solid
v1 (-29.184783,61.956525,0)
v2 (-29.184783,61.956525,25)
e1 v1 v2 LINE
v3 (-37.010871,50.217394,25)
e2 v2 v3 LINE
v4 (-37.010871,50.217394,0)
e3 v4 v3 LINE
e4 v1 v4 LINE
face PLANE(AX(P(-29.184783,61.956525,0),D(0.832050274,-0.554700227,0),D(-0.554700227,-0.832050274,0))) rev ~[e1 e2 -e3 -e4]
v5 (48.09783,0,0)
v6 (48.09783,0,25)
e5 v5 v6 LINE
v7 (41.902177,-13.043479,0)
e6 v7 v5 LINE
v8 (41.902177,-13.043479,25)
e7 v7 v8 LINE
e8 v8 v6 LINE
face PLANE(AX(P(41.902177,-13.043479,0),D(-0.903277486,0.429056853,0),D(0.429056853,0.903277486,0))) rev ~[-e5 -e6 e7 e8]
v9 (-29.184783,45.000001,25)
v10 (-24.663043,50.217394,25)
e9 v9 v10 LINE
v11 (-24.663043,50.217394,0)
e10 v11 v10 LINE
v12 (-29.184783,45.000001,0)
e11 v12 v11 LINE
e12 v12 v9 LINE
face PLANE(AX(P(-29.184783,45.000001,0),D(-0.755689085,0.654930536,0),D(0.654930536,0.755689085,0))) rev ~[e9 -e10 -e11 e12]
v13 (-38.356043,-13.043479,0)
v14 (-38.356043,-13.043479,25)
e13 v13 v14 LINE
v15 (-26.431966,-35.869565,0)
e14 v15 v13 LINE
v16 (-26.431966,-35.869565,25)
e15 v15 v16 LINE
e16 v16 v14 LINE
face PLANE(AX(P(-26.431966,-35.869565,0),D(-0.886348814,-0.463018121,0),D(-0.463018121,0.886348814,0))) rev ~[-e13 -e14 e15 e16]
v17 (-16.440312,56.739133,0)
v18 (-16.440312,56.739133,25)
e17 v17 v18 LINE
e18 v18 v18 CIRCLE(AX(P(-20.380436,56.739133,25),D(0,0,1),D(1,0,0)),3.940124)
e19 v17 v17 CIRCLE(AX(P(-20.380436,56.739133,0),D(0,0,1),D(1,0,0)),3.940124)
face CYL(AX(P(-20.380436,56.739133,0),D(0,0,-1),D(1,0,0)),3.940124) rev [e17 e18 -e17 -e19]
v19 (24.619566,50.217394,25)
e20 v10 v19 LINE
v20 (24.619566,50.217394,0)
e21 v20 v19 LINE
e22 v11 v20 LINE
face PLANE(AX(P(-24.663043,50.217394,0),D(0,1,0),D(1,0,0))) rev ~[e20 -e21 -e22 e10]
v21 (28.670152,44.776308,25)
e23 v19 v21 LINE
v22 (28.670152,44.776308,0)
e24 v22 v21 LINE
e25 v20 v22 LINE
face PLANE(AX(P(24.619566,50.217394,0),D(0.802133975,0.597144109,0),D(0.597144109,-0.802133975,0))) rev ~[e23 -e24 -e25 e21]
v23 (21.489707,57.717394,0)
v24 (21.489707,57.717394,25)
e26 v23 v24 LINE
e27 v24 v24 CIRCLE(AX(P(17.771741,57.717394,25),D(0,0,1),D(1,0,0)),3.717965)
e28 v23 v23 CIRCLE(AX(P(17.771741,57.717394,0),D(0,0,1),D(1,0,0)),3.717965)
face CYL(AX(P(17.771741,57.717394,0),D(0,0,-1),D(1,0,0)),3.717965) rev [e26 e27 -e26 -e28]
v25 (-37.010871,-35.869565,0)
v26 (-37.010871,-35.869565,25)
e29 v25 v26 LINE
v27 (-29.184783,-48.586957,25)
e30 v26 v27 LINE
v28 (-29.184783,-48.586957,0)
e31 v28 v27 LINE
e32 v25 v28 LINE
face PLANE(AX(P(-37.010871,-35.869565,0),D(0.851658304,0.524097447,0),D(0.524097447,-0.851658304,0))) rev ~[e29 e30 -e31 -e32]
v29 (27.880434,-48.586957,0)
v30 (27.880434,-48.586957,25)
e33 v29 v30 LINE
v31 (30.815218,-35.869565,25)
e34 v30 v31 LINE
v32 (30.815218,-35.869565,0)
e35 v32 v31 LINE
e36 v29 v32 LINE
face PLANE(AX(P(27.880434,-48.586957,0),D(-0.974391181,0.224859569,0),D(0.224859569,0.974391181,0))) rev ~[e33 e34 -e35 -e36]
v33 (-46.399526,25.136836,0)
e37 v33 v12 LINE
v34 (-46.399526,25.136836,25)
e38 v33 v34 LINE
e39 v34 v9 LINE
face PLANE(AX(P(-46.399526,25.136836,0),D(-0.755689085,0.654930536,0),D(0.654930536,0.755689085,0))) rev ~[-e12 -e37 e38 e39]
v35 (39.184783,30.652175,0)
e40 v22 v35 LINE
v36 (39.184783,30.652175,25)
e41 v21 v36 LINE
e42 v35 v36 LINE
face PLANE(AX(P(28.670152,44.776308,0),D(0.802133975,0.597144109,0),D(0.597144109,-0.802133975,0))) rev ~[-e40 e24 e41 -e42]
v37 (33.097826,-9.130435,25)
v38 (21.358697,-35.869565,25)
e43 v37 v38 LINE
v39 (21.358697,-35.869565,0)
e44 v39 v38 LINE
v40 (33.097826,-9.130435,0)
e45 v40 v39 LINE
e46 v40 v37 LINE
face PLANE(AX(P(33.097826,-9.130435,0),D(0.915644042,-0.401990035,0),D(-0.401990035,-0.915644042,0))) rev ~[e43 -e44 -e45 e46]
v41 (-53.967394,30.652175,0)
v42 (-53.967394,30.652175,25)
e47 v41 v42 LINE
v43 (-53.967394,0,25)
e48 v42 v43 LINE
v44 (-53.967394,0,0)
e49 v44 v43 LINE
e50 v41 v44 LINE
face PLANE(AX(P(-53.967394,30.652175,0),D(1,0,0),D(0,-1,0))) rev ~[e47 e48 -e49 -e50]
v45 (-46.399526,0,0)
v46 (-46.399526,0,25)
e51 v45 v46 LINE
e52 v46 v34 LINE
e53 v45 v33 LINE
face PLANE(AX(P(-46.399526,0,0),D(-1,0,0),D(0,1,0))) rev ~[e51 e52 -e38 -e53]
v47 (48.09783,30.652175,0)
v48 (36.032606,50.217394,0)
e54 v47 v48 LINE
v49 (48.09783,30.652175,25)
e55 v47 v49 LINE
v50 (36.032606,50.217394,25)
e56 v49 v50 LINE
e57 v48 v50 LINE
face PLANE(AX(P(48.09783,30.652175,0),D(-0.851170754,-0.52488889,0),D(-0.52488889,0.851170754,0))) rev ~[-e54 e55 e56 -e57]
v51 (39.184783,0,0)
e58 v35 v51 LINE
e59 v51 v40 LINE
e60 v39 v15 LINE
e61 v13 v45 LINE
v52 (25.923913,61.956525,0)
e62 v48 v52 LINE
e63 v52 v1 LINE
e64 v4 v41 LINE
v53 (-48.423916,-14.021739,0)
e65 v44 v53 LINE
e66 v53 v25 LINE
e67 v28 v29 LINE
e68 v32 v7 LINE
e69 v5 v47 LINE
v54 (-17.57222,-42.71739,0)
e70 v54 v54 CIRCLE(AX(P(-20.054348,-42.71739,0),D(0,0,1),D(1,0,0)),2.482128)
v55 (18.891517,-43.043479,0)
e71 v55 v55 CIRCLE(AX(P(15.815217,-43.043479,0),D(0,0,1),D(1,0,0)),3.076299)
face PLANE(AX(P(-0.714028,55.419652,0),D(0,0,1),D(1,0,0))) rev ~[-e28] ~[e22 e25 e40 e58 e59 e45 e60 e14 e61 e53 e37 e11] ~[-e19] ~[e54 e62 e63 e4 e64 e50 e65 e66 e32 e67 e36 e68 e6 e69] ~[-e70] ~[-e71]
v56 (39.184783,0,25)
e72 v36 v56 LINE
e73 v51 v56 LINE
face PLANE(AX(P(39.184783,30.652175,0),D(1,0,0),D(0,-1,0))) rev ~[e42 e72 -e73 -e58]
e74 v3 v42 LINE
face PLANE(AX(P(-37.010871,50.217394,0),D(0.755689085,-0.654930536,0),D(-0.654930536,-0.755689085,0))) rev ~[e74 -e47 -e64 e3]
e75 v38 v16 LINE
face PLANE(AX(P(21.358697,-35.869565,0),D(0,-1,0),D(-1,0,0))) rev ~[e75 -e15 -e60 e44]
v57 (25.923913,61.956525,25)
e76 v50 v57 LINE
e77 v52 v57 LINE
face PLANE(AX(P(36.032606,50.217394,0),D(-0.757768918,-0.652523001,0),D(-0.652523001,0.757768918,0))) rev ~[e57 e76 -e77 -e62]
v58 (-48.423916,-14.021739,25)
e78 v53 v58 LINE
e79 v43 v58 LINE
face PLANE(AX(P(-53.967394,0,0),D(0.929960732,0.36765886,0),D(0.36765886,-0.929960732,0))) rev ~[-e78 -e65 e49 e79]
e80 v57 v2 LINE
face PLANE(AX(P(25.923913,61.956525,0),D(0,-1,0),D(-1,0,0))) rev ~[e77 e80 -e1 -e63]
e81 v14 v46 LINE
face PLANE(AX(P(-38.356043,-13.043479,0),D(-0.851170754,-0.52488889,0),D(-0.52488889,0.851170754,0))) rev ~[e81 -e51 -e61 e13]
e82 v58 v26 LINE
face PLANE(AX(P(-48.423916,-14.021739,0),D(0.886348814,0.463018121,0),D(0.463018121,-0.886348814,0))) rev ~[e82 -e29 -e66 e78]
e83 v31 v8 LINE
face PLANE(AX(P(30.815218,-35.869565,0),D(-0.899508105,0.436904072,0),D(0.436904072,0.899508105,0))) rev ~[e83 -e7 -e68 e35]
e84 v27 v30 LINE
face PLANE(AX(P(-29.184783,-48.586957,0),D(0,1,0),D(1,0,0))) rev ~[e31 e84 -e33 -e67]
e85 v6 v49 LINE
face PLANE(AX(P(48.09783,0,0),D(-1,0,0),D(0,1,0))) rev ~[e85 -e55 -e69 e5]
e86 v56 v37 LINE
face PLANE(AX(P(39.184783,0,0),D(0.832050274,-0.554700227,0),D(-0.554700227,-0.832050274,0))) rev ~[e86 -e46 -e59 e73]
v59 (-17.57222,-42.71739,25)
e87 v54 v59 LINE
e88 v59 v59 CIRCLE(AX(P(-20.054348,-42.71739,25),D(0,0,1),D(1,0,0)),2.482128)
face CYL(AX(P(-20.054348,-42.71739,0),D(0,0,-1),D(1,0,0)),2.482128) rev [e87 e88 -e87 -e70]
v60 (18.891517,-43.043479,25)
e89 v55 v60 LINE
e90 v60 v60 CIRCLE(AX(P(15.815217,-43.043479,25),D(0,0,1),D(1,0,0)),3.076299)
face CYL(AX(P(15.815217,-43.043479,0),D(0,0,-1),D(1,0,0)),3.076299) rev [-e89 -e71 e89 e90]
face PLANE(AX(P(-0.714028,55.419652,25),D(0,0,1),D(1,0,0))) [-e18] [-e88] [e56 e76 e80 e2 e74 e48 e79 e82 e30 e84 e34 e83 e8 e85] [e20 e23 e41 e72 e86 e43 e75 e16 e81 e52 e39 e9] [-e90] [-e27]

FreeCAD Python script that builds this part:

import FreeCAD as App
import Part
import Sketcher
from FreeCAD import Vector

doc = App.newDocument("Part")
params = doc.addObject("Spreadsheet::Sheet", "Params")
for row, (alias, value) in enumerate([
    ("pad1_length", "25 mm"),
], start=1):
    params.set(f"A{row}", alias)
    params.set(f"B{row}", "=" + value)
    params.setAlias(f"B{row}", alias)

body = doc.addObject("PartDesign::Body", "Body")

sketch1 = doc.addObject("Sketcher::SketchObject", "Sketch")
body.addObject(sketch1)
sketch1.AttachmentSupport = (doc.XY_Plane, [""])
sketch1.MapMode = "FlatFace"
sketch1.addGeometry(Part.LineSegment(Vector(25.923913, 61.956525, 0), Vector(-29.184783, 61.956525, 0)), False)
sketch1.addGeometry(Part.LineSegment(Vector(-29.184783, 61.956525, 0), Vector(-37.010871, 50.217394, 0)), False)
sketch1.addGeometry(Part.LineSegment(Vector(-37.010871, 50.217394, 0), Vector(-53.967394, 30.652175, 0)), False)
sketch1.addGeometry(Part.LineSegment(Vector(-53.967394, 30.652175, 0), Vector(-53.967394, 0, 0)), False)
sketch1.addGeometry(Part.LineSegment(Vector(-53.967394, 0, 0), Vector(-48.423916, -14.021739, 0)), False)
sketch1.addGeometry(Part.LineSegment(Vector(-48.423916, -14.021739, 0), Vector(-37.010871, -35.869565, 0)), False)
sketch1.addGeometry(Part.LineSegment(Vector(-37.010871, -35.869565, 0), Vector(-29.184783, -48.586957, 0)), False)
sketch1.addGeometry(Part.LineSegment(Vector(-29.184783, -48.586957, 0), Vector(27.880434, -48.586957, 0)), False)
sketch1.addGeometry(Part.LineSegment(Vector(27.880434, -48.586957, 0), Vector(30.815218, -35.869565, 0)), False)
sketch1.addGeometry(Part.LineSegment(Vector(30.815218, -35.869565, 0), Vector(41.902177, -13.043479, 0)), False)
sketch1.addGeometry(Part.LineSegment(Vector(41.902177, -13.043479, 0), Vector(48.09783, 0, 0)), False)
sketch1.addGeometry(Part.LineSegment(Vector(48.09783, 0, 0), Vector(48.09783, 30.652175, 0)), False)
sketch1.addGeometry(Part.LineSegment(Vector(48.09783, 30.652175, 0), Vector(36.032606, 50.217394, 0)), False)
sketch1.addGeometry(Part.LineSegment(Vector(36.032606, 50.217394, 0), Vector(25.923913, 61.956525, 0)), False)
sketch1.addGeometry(Part.Circle(Vector(-20.054348, -42.71739, 0), Vector(0, 0, 1), 2.482128), False)
sketch1.addGeometry(Part.Circle(Vector(15.815217, -43.043479, 0), Vector(0, 0, 1), 3.076299), False)
sketch1.addGeometry(Part.LineSegment(Vector(-26.431966, -35.869565, 0), Vector(-38.356043, -13.043479, 0)), False)
sketch1.addGeometry(Part.LineSegment(Vector(-38.356043, -13.043479, 0), Vector(-46.399526, 0, 0)), False)
sketch1.addGeometry(Part.LineSegment(Vector(-46.399526, 0, 0), Vector(-46.399526, 25.136836, 0)), False)
sketch1.addGeometry(Part.LineSegment(Vector(-46.399526, 25.136836, 0), Vector(-29.184783, 45.000001, 0)), False)
sketch1.addGeometry(Part.LineSegment(Vector(-29.184783, 45.000001, 0), Vector(-24.663043, 50.217394, 0)), False)
sketch1.addGeometry(Part.LineSegment(Vector(-24.663043, 50.217394, 0), Vector(24.619566, 50.217394, 0)), False)
sketch1.addGeometry(Part.LineSegment(Vector(24.619566, 50.217394, 0), Vector(28.670152, 44.776308, 0)), False)
sketch1.addGeometry(Part.LineSegment(Vector(28.670152, 44.776308, 0), Vector(39.184783, 30.652175, 0)), False)
sketch1.addGeometry(Part.LineSegment(Vector(39.184783, 30.652175, 0), Vector(39.184783, 0, 0)), False)
sketch1.addGeometry(Part.LineSegment(Vector(39.184783, 0, 0), Vector(33.097826, -9.130435, 0)), False)
sketch1.addGeometry(Part.LineSegment(Vector(33.097826, -9.130435, 0), Vector(21.358697, -35.869565, 0)), False)
sketch1.addGeometry(Part.LineSegment(Vector(21.358697, -35.869565, 0), Vector(-26.431966, -35.869565, 0)), False)
sketch1.addGeometry(Part.Circle(Vector(-20.380436, 56.739133, 0), Vector(0, 0, 1), 3.940124), False)
sketch1.addGeometry(Part.Circle(Vector(17.771741, 57.717394, 0), Vector(0, 0, 1), 3.717965), False)
sketch1.addConstraint(Sketcher.Constraint("Coincident", 0, 2, 1, 1))
sketch1.addConstraint(Sketcher.Constraint("Coincident", 1, 2, 2, 1))
sketch1.addConstraint(Sketcher.Constraint("Coincident", 2, 2, 3, 1))
sketch1.addConstraint(Sketcher.Constraint("Coincident", 3, 2, 4, 1))
sketch1.addConstraint(Sketcher.Constraint("Coincident", 4, 2, 5, 1))
sketch1.addConstraint(Sketcher.Constraint("Coincident", 5, 2, 6, 1))
sketch1.addConstraint(Sketcher.Constraint("Coincident", 6, 2, 7, 1))
sketch1.addConstraint(Sketcher.Constraint("Coincident", 7, 2, 8, 1))
sketch1.addConstraint(Sketcher.Constraint("Coincident", 8, 2, 9, 1))
sketch1.addConstraint(Sketcher.Constraint("Coincident", 9, 2, 10, 1))
sketch1.addConstraint(Sketcher.Constraint("Coincident", 10, 2, 11, 1))
sketch1.addConstraint(Sketcher.Constraint("Coincident", 11, 2, 12, 1))
sketch1.addConstraint(Sketcher.Constraint("Coincident", 12, 2, 13, 1))
sketch1.addConstraint(Sketcher.Constraint("Coincident", 13, 2, 0, 1))
sketch1.addConstraint(Sketcher.Constraint("Coincident", 16, 2, 17, 1))
sketch1.addConstraint(Sketcher.Constraint("Coincident", 17, 2, 18, 1))
sketch1.addConstraint(Sketcher.Constraint("Coincident", 18, 2, 19, 1))
sketch1.addConstraint(Sketcher.Constraint("Coincident", 19, 2, 20, 1))
sketch1.addConstraint(Sketcher.Constraint("Coincident", 20, 2, 21, 1))
sketch1.addConstraint(Sketcher.Constraint("Coincident", 21, 2, 22, 1))
sketch1.addConstraint(Sketcher.Constraint("Coincident", 22, 2, 23, 1))
sketch1.addConstraint(Sketcher.Constraint("Coincident", 23, 2, 24, 1))
sketch1.addConstraint(Sketcher.Constraint("Coincident", 24, 2, 25, 1))
sketch1.addConstraint(Sketcher.Constraint("Coincident", 25, 2, 26, 1))
sketch1.addConstraint(Sketcher.Constraint("Coincident", 26, 2, 27, 1))
sketch1.addConstraint(Sketcher.Constraint("Coincident", 27, 2, 16, 1))
sketch1.addConstraint(Sketcher.Constraint("Horizontal", 0))
sketch1.addConstraint(Sketcher.Constraint("Vertical", 3))
sketch1.addConstraint(Sketcher.Constraint("Horizontal", 7))
sketch1.addConstraint(Sketcher.Constraint("Vertical", 11))
sketch1.addConstraint(Sketcher.Constraint("Vertical", 18))
sketch1.addConstraint(Sketcher.Constraint("Horizontal", 21))
sketch1.addConstraint(Sketcher.Constraint("Vertical", 24))
sketch1.addConstraint(Sketcher.Constraint("Horizontal", 27))
sketch1.addConstraint(Sketcher.Constraint("PointOnObject", 3, 2, -1))
sketch1.addConstraint(Sketcher.Constraint("PointOnObject", 10, 2, -1))
sketch1.addConstraint(Sketcher.Constraint("PointOnObject", 17, 2, -1))
sketch1.addConstraint(Sketcher.Constraint("PointOnObject", 24, 2, -1))
sketch1.addConstraint(Sketcher.Constraint("Parallel", 5, 16))
sketch1.addConstraint(Sketcher.Constraint("Parallel", 12, 17))
sketch1.addConstraint(Sketcher.Constraint("Parallel", 2, 19))
sketch1.addConstraint(Sketcher.Constraint("Parallel", 19, 20))
sketch1.addConstraint(Sketcher.Constraint("Parallel", 22, 23))
sketch1.addConstraint(Sketcher.Constraint("Parallel", 1, 25))
sketch1.addConstraint(Sketcher.Constraint("Horizontal", 5, 2, 8, 2))
sketch1.addConstraint(Sketcher.Constraint("Horizontal", 2, 2, 11, 2))
sketch1.addConstraint(Sketcher.Constraint("Horizontal", 1, 2, 12, 2))
sketch1.addConstraint(Sketcher.Constraint("Horizontal", 9, 2, 16, 2))
sketch1.addConstraint(Sketcher.Constraint("Horizontal", 12, 2, 20, 2))
sketch1.addConstraint(Sketcher.Constraint("Horizontal", 11, 2, 23, 2))
sketch1.addConstraint(Sketcher.Constraint("Horizontal", 8, 2, 26, 2))
sketch1.addConstraint(Sketcher.Constraint("Vertical", 1, 2, 5, 2))
sketch1.addConstraint(Sketcher.Constraint("Vertical", 0, 2, 6, 2))
sketch1.addConstraint(Sketcher.Constraint("Vertical", 6, 2, 19, 2))
sketch1.addConstraint(Sketcher.Constraint("DistanceY", -1, 1, 19, 2, 45.000001))
sketch1.addConstraint(Sketcher.Constraint("DistanceX", 0, 2, 15, 3, 45.0))
sketch1.addConstraint(Sketcher.Constraint("DistanceX", 15, 3, 8, 2, 15.000001))
sketch1.addConstraint(Sketcher.Constraint("DistanceY", 15, 3, 9, 2, 30.0))
sketch1.addConstraint(Sketcher.Constraint("DistanceX", 28, 3, 21, 2, 45.000002))
sketch1.addConstraint(Sketcher.Constraint("Diameter", 15, 6.152599))
sketch1.addConstraint(Sketcher.Constraint("DistanceY", 1, 2, 29, 3, 7.5))
sketch1.addConstraint(Sketcher.Constraint("Diameter", 29, 7.435931))
sketch1.addConstraint(Sketcher.Constraint("Diameter", 14, 4.964255))
sketch1.addConstraint(Sketcher.Constraint("Diameter", 28, 7.880247))
sketch1.addConstraint(Sketcher.Constraint("DistanceX", 21, 1, 21, 2, 49.282609))
sketch1.addConstraint(Sketcher.Constraint("Distance", 1, 14.10868))
sketch1.addConstraint(Sketcher.Constraint("Distance", 5, 24.649241))
sketch1.addConstraint(Sketcher.Constraint("Distance", 8, 13.051629))
sketch1.addConstraint(Sketcher.Constraint("Distance", 10, 14.440168))
sketch1.addConstraint(Sketcher.Constraint("DistanceX", 0, 2, 0, 1, 55.108696))
sketch1.addConstraint(Sketcher.Constraint("DistanceX", 7, 1, 7, 2, 57.065217))
sketch1.addConstraint(Sketcher.Constraint("DistanceX", 27, 2, 27, 1, 47.790663))
sketch1.addConstraint(Sketcher.Constraint("DistanceY", 3, 2, 3, 1, 30.652175))
sketch1.addConstraint(Sketcher.Constraint("DistanceY", 18, 1, 18, 2, 25.136836))
sketch1.addConstraint(Sketcher.Constraint("DistanceY", 14, 3, -1, 1, 42.71739))
sketch1.addConstraint(Sketcher.Constraint("DistanceY", 15, 3, -1, 1, 43.043479))
sketch1.addConstraint(Sketcher.Constraint("DistanceX", -1, 1, 29, 3, 17.771741))
sketch1.addConstraint(Sketcher.Constraint("DistanceX", 1, 2, -1, 1, 37.010871))
sketch1.addConstraint(Sketcher.Constraint("DistanceY", 4, 2, -1, 1, 14.021739))
sketch1.addConstraint(Sketcher.Constraint("DistanceX", -1, 1, 10, 2, 48.09783))
sketch1.addConstraint(Sketcher.Constraint("DistanceX", -1, 1, 22, 2, 28.670152))
sketch1.addConstraint(Sketcher.Constraint("DistanceY", -1, 1, 22, 2, 44.776308))
sketch1.addConstraint(Sketcher.Constraint("DistanceY", 28, 3, 29, 3, 0.978261))
sketch1.addConstraint(Sketcher.Constraint("DistanceX", 14, 3, 29, 3, 37.826089))
sketch1.addConstraint(Sketcher.Constraint("DistanceY", 28, 3, 0, 2, 5.217392))
sketch1.addConstraint(Sketcher.Constraint("DistanceY", 2, 2, 1, 2, 19.565219))
sketch1.addConstraint(Sketcher.Constraint("DistanceX", 2, 2, 0, 2, 24.782611))
sketch1.addConstraint(Sketcher.Constraint("DistanceX", 4, 2, 14, 3, 28.369568))
sketch1.addConstraint(Sketcher.Constraint("DistanceX", 28, 3, 12, 2, 56.413041))
sketch1.addConstraint(Sketcher.Constraint("DistanceX", 25, 2, 9, 2, 8.804351))
pad1 = doc.addObject("PartDesign::Pad", "Pad")
body.addObject(pad1)
pad1.Profile = sketch1
pad1.setExpression("Length", "Params.pad1_length")

doc.recompute()
